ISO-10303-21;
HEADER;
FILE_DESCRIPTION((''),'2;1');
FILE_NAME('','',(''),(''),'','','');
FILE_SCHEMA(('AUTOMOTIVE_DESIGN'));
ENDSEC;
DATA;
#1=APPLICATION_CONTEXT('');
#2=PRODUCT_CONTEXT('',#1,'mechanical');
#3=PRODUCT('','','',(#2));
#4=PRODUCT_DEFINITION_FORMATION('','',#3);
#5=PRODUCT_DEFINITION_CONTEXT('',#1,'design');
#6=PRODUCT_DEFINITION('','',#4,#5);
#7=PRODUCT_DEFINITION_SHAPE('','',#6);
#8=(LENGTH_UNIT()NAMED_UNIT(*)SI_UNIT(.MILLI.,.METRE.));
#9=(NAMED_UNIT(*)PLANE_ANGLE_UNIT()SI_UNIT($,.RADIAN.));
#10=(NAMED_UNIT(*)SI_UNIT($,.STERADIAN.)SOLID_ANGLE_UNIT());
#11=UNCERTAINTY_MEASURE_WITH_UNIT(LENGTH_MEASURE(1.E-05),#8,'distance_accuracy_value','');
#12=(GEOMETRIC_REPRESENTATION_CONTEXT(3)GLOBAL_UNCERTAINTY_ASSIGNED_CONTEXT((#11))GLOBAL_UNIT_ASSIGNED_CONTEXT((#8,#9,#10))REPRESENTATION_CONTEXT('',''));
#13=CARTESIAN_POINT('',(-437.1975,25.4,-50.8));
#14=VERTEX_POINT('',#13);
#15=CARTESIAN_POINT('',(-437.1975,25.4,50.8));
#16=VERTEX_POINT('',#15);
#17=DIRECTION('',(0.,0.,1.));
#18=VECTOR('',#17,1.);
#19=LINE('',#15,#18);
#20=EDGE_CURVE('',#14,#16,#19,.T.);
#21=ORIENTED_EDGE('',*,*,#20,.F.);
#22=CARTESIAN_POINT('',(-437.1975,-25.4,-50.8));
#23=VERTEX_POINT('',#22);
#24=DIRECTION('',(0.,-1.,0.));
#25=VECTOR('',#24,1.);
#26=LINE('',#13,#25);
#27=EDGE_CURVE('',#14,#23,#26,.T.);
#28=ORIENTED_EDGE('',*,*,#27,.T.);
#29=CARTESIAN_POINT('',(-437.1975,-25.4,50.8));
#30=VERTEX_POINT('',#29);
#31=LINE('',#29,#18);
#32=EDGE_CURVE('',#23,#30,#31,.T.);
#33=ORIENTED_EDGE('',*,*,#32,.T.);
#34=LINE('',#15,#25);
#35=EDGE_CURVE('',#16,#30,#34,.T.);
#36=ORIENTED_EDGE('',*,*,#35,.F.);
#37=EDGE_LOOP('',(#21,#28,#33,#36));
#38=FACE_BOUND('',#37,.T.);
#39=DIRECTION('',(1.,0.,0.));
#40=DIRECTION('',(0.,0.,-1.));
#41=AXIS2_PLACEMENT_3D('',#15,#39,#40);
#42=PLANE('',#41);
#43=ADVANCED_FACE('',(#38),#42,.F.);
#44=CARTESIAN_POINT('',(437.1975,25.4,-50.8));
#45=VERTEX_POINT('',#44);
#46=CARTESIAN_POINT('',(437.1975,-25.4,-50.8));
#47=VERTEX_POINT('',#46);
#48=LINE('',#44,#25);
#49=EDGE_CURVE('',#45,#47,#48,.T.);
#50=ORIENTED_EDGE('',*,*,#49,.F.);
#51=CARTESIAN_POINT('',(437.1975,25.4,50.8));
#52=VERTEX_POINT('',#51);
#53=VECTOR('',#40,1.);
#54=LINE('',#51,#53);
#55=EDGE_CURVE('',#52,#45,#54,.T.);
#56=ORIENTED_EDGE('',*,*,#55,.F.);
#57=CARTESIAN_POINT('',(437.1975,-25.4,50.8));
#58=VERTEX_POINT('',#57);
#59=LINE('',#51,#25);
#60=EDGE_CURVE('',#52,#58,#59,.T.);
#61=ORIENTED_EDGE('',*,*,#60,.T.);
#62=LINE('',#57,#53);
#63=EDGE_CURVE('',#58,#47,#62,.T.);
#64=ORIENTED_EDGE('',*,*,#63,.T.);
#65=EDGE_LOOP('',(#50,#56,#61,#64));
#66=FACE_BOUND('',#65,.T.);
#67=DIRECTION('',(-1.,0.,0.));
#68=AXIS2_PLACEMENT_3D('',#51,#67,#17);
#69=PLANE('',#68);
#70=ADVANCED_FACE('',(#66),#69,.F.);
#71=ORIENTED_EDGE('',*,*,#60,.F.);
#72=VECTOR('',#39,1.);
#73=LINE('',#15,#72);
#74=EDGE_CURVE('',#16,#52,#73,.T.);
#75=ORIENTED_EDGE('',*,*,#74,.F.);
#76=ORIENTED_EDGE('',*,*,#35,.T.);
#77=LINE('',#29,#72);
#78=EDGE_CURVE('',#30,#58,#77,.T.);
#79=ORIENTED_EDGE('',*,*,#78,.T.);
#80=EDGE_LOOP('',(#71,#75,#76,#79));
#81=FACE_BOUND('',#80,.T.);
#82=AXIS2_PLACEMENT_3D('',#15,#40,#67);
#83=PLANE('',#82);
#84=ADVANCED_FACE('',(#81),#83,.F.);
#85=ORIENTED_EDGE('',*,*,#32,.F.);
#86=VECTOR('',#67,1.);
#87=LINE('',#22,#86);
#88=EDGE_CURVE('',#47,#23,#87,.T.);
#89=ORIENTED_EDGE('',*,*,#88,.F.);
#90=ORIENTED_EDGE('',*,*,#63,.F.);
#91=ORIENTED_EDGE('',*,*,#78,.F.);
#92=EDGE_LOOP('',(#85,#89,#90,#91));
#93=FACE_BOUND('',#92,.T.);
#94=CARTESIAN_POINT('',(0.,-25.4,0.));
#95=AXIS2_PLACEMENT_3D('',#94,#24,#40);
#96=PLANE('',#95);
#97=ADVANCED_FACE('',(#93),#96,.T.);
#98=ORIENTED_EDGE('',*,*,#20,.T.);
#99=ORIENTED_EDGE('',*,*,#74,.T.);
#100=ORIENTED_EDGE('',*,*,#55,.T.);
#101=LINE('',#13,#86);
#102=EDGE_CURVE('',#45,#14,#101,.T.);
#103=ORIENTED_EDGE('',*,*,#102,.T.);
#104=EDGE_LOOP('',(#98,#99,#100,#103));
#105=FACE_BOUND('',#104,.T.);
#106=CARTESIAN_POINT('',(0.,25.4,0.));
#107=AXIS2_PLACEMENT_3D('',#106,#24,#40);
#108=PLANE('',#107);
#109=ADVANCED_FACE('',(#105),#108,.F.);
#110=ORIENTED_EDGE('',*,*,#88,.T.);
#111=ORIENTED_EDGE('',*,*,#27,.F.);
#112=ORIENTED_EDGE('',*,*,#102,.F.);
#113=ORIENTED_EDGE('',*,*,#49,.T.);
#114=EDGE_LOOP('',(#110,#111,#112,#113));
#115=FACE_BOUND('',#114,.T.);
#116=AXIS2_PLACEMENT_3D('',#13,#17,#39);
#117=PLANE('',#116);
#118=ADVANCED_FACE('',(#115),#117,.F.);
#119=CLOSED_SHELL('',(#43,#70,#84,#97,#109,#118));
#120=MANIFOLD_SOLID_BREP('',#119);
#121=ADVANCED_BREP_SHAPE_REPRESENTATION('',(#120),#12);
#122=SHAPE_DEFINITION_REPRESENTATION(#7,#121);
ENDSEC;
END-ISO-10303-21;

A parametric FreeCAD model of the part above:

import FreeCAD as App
import Part
import Sketcher
from FreeCAD import Vector
Q = App.Units.Quantity


def add_polygon(sketch, points):
    """Adds a closed chain of lines whose ends are joined by coincident constraints."""
    first, n = sketch.GeometryCount, len(points)
    for a, b in zip(points, points[1:] + points[:1]):
        sketch.addGeometry(Part.LineSegment(App.Vector(*a, 0), App.Vector(*b, 0)), False)
    for i in range(n):
        sketch.addConstraint(Sketcher.Constraint("Coincident", first + i, 2, first + (i + 1) % n, 1))

doc = App.newDocument("Part")
body = doc.addObject("PartDesign::Body", "Body")

sketch1 = body.newObject("Sketcher::SketchObject", "Sketch")
sketch1.AttachmentSupport = (doc.getObject("XZ_Plane"), [""])
sketch1.MapMode = "FlatFace"
add_polygon(sketch1, [(-437, -51), (-437, 51), (437, 51), (437, -51)])
sketch1.addConstraint([
    Sketcher.Constraint("Vertical", 0),
    Sketcher.Constraint("Horizontal", 1),
    Sketcher.Constraint("Vertical", 2),
    Sketcher.Constraint("Horizontal", 3),
    Sketcher.Constraint("Symmetric", 0, 2, 2, 2, -1, 1),
    Sketcher.Constraint("DistanceY", 0, 1, 0, 2, Q("4 in")),
    Sketcher.Constraint("DistanceX", 1, 1, 1, 2, Q("34.425 in")),
])
pad1 = body.newObject("PartDesign::Pad", "Pad")
pad1.Profile = sketch1
pad1.Length = Q("2 in")
pad1.Midplane = True

doc.recompute()
